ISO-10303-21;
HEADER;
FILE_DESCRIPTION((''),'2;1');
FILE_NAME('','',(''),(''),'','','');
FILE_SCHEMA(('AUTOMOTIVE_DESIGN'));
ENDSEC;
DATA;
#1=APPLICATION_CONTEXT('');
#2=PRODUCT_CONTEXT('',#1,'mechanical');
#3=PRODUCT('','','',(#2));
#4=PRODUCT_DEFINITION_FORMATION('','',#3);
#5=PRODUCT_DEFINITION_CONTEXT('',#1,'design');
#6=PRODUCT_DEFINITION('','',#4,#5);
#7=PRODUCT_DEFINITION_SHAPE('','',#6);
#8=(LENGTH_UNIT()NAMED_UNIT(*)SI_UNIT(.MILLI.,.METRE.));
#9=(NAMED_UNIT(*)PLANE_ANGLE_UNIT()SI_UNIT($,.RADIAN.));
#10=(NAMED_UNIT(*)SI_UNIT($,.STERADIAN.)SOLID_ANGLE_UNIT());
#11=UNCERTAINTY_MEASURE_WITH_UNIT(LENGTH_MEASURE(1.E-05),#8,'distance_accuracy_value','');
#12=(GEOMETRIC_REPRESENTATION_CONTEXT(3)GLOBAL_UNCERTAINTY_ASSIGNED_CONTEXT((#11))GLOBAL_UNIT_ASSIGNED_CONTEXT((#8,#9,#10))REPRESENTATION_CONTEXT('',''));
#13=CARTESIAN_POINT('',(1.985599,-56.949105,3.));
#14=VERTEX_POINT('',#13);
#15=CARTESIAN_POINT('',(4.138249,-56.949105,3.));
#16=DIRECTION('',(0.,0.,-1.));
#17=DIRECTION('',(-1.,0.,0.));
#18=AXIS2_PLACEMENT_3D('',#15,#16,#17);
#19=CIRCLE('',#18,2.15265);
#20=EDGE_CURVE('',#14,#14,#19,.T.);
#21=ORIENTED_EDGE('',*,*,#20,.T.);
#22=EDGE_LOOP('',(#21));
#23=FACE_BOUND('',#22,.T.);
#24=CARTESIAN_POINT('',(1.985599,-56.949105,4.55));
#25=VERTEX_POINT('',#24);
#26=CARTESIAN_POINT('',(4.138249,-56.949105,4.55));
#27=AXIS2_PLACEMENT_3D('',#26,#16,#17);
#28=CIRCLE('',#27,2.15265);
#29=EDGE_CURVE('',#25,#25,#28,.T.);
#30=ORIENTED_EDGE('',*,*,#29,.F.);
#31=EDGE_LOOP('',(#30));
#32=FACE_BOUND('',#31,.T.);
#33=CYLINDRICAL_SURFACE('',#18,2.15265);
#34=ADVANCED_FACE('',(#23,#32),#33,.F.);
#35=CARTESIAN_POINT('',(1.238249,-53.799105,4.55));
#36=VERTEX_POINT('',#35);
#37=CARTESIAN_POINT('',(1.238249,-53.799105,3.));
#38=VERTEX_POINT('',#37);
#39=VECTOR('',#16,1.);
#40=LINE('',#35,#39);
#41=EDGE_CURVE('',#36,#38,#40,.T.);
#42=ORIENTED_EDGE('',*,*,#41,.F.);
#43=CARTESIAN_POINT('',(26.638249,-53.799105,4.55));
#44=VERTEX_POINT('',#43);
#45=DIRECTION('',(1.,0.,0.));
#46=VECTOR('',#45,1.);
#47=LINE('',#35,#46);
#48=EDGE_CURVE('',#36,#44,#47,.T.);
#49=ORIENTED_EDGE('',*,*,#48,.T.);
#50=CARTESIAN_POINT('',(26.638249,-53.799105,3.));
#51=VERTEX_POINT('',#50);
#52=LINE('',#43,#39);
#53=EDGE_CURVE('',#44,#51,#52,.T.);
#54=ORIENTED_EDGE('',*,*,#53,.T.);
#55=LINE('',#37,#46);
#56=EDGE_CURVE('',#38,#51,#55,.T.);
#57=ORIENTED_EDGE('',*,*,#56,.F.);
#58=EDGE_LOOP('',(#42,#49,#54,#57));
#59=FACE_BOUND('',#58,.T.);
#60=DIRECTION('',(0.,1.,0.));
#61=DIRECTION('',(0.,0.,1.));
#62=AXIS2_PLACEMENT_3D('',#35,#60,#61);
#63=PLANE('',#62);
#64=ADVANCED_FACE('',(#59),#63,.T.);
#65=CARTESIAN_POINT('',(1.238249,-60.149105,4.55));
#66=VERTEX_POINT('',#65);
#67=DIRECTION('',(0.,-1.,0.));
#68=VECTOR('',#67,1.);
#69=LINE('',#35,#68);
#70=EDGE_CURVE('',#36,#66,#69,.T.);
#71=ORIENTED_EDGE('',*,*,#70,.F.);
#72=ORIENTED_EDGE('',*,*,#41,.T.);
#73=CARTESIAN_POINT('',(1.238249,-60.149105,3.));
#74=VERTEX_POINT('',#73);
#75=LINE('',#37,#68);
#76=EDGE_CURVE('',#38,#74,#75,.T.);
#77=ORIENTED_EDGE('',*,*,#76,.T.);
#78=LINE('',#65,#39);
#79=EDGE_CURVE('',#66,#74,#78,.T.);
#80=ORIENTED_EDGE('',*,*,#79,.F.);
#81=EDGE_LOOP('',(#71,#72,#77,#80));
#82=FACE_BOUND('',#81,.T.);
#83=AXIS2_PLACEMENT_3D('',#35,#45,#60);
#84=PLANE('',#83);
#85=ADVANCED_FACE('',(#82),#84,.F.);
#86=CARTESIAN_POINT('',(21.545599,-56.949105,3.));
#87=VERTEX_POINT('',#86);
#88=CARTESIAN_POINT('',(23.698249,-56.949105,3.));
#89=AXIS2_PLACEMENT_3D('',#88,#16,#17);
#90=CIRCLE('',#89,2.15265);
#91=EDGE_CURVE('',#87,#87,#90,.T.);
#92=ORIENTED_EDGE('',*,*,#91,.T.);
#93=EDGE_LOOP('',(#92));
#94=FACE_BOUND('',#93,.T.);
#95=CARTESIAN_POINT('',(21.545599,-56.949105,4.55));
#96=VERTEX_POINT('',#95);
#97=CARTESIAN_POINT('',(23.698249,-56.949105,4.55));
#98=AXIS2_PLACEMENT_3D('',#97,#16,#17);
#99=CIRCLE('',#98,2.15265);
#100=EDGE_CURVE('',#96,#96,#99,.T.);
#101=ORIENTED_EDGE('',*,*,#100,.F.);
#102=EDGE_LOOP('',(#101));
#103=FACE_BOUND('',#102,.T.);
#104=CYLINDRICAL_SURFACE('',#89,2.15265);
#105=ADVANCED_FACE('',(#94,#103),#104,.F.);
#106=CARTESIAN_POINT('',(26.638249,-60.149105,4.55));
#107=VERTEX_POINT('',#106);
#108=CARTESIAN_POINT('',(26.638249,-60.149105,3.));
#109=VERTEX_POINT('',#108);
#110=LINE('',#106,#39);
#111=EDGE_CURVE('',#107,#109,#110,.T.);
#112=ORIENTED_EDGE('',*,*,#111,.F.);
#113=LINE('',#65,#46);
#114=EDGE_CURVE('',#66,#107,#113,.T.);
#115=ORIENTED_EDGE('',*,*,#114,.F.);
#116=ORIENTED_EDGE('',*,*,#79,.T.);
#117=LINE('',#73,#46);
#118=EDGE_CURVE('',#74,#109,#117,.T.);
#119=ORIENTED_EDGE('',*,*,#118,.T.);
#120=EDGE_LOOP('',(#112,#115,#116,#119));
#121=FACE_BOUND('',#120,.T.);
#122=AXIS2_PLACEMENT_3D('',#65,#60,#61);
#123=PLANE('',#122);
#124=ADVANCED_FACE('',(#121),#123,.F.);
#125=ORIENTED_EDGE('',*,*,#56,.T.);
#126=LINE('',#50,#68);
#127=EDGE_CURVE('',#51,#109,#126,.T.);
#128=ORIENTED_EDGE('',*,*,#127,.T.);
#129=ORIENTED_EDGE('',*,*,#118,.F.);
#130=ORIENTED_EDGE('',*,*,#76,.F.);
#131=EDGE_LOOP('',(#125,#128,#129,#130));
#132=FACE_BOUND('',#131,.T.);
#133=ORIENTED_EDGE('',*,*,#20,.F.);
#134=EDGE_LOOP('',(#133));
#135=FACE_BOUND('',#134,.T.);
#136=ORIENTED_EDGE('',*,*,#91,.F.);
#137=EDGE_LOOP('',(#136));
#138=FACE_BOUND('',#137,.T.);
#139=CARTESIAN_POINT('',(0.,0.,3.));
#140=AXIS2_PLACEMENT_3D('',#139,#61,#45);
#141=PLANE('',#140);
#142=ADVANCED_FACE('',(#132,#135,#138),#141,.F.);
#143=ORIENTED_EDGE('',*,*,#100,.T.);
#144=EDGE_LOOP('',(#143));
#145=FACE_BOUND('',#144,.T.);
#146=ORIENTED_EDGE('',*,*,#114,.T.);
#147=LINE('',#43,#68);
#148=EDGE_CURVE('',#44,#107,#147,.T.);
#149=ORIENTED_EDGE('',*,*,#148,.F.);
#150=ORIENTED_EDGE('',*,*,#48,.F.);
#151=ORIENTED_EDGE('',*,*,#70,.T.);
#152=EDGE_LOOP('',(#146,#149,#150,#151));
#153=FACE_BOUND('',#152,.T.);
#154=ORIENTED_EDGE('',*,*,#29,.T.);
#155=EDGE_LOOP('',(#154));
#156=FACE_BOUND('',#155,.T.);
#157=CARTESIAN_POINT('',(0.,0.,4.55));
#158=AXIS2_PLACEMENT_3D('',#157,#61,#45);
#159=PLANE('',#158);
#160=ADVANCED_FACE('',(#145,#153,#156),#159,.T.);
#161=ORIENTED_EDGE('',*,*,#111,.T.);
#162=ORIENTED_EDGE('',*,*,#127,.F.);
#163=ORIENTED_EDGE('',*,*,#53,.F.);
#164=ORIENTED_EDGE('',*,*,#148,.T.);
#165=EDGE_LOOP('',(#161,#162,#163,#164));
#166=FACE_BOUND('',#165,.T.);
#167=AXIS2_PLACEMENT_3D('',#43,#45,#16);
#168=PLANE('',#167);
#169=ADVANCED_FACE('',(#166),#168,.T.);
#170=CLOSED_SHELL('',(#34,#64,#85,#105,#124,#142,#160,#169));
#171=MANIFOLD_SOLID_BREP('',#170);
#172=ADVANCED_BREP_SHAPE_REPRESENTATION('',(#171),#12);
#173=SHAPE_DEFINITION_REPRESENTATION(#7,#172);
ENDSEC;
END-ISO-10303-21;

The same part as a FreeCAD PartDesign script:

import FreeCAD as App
import Part
import Sketcher
from FreeCAD import Vector
Q = App.Units.Quantity

doc = App.newDocument("Part")
params = doc.addObject("Spreadsheet::Sheet", "Params")
for row, (alias, value) in enumerate([
    ("sketch1_width", "1 in"),
    ("sketch1_height", "0.25 in"),
    ("pad1_length", "1.55 mm"),
    ("hole_diameter", "0.1695 in"),
], start=1):
    params.set(f"A{row}", alias)
    params.set(f"B{row}", "=" + value)
    params.setAlias(f"B{row}", alias)

body = doc.addObject("PartDesign::Body", "Body")

sketch1 = body.newObject("Sketcher::SketchObject", "Sketch")
sketch1.AttachmentSupport = (doc.getObject("XY_Plane"), [""])
sketch1.MapMode = "FlatFace"
sketch1.AttachmentOffset = App.Placement(Vector(0, 0, 3), App.Rotation())
sketch1.addGeometry(Part.LineSegment(Vector(1, -54, 0), Vector(1, -60, 0)), False)
sketch1.addGeometry(Part.LineSegment(Vector(1, -60, 0), Vector(27, -60, 0)), False)
sketch1.addGeometry(Part.LineSegment(Vector(27, -60, 0), Vector(27, -54, 0)), False)
sketch1.addGeometry(Part.LineSegment(Vector(27, -54, 0), Vector(1, -54, 0)), False)
sketch1.addConstraint(Sketcher.Constraint("Coincident", 0, 2, 1, 1))
sketch1.addConstraint(Sketcher.Constraint("Coincident", 1, 2, 2, 1))
sketch1.addConstraint(Sketcher.Constraint("Coincident", 2, 2, 3, 1))
sketch1.addConstraint(Sketcher.Constraint("Coincident", 3, 2, 0, 1))
sketch1.addConstraint(Sketcher.Constraint("Vertical", 0))
sketch1.addConstraint(Sketcher.Constraint("Horizontal", 1))
sketch1.addConstraint(Sketcher.Constraint("Vertical", 2))
sketch1.addConstraint(Sketcher.Constraint("Horizontal", 3))
sketch1.addConstraint(Sketcher.Constraint("DistanceX", 1, 1, 1, 2, Q("1 in")))
sketch1.addConstraint(Sketcher.Constraint("DistanceY", 0, 2, 0, 1, Q("0.25 in")))
sketch1.addConstraint(Sketcher.Constraint("DistanceX", -1, 1, 0, 2, Q("1.238249 mm")))
sketch1.addConstraint(Sketcher.Constraint("DistanceY", 0, 2, -1, 1, Q("60.149105 mm")))
sketch1.setExpression("Constraints[8]", "Params.sketch1_width")
sketch1.setExpression("Constraints[9]", "Params.sketch1_height")
pad1 = body.newObject("PartDesign::Pad", "Pad")
pad1.Profile = sketch1
pad1.setExpression("Length", "Params.pad1_length")

sketch2 = body.newObject("Sketcher::SketchObject", "Sketch001")
sketch2.AttachmentSupport = (doc.getObject("XY_Plane"), [""])
sketch2.MapMode = "FlatFace"
sketch2.AttachmentOffset = App.Placement(Vector(0, 0, 3), App.Rotation())
sketch2.addGeometry(Part.Circle(Vector(4.1, -56.9, 0), Vector(0, 0, 1), 2.2), False)
sketch2.addGeometry(Part.Circle(Vector(23.7, -56.9, 0), Vector(0, 0, 1), 2.2), False)
sketch2.addConstraint(Sketcher.Constraint("Equal", 0, 1))
sketch2.addConstraint(Sketcher.Constraint("Horizontal", 0, 3, 1, 3))
sketch2.addConstraint(Sketcher.Constraint("Diameter", 0, Q("0.1695 in")))
sketch2.addConstraint(Sketcher.Constraint("DistanceX", 0, 3, 1, 3, Q("19.56 mm")))
sketch2.addConstraint(Sketcher.Constraint("DistanceX", -1, 1, 0, 3, Q("4.138249 mm")))
sketch2.addConstraint(Sketcher.Constraint("DistanceY", 0, 3, -1, 1, Q("56.949105 mm")))
doc.recompute()
hole = body.newObject("PartDesign::Hole", "Hole")
hole.Profile = sketch2
hole.ThreadType = "None"
hole.setExpression("Diameter", "Params.hole_diameter")
hole.DepthType = "ThroughAll"
hole.Reversed = True

doc.recompute()
